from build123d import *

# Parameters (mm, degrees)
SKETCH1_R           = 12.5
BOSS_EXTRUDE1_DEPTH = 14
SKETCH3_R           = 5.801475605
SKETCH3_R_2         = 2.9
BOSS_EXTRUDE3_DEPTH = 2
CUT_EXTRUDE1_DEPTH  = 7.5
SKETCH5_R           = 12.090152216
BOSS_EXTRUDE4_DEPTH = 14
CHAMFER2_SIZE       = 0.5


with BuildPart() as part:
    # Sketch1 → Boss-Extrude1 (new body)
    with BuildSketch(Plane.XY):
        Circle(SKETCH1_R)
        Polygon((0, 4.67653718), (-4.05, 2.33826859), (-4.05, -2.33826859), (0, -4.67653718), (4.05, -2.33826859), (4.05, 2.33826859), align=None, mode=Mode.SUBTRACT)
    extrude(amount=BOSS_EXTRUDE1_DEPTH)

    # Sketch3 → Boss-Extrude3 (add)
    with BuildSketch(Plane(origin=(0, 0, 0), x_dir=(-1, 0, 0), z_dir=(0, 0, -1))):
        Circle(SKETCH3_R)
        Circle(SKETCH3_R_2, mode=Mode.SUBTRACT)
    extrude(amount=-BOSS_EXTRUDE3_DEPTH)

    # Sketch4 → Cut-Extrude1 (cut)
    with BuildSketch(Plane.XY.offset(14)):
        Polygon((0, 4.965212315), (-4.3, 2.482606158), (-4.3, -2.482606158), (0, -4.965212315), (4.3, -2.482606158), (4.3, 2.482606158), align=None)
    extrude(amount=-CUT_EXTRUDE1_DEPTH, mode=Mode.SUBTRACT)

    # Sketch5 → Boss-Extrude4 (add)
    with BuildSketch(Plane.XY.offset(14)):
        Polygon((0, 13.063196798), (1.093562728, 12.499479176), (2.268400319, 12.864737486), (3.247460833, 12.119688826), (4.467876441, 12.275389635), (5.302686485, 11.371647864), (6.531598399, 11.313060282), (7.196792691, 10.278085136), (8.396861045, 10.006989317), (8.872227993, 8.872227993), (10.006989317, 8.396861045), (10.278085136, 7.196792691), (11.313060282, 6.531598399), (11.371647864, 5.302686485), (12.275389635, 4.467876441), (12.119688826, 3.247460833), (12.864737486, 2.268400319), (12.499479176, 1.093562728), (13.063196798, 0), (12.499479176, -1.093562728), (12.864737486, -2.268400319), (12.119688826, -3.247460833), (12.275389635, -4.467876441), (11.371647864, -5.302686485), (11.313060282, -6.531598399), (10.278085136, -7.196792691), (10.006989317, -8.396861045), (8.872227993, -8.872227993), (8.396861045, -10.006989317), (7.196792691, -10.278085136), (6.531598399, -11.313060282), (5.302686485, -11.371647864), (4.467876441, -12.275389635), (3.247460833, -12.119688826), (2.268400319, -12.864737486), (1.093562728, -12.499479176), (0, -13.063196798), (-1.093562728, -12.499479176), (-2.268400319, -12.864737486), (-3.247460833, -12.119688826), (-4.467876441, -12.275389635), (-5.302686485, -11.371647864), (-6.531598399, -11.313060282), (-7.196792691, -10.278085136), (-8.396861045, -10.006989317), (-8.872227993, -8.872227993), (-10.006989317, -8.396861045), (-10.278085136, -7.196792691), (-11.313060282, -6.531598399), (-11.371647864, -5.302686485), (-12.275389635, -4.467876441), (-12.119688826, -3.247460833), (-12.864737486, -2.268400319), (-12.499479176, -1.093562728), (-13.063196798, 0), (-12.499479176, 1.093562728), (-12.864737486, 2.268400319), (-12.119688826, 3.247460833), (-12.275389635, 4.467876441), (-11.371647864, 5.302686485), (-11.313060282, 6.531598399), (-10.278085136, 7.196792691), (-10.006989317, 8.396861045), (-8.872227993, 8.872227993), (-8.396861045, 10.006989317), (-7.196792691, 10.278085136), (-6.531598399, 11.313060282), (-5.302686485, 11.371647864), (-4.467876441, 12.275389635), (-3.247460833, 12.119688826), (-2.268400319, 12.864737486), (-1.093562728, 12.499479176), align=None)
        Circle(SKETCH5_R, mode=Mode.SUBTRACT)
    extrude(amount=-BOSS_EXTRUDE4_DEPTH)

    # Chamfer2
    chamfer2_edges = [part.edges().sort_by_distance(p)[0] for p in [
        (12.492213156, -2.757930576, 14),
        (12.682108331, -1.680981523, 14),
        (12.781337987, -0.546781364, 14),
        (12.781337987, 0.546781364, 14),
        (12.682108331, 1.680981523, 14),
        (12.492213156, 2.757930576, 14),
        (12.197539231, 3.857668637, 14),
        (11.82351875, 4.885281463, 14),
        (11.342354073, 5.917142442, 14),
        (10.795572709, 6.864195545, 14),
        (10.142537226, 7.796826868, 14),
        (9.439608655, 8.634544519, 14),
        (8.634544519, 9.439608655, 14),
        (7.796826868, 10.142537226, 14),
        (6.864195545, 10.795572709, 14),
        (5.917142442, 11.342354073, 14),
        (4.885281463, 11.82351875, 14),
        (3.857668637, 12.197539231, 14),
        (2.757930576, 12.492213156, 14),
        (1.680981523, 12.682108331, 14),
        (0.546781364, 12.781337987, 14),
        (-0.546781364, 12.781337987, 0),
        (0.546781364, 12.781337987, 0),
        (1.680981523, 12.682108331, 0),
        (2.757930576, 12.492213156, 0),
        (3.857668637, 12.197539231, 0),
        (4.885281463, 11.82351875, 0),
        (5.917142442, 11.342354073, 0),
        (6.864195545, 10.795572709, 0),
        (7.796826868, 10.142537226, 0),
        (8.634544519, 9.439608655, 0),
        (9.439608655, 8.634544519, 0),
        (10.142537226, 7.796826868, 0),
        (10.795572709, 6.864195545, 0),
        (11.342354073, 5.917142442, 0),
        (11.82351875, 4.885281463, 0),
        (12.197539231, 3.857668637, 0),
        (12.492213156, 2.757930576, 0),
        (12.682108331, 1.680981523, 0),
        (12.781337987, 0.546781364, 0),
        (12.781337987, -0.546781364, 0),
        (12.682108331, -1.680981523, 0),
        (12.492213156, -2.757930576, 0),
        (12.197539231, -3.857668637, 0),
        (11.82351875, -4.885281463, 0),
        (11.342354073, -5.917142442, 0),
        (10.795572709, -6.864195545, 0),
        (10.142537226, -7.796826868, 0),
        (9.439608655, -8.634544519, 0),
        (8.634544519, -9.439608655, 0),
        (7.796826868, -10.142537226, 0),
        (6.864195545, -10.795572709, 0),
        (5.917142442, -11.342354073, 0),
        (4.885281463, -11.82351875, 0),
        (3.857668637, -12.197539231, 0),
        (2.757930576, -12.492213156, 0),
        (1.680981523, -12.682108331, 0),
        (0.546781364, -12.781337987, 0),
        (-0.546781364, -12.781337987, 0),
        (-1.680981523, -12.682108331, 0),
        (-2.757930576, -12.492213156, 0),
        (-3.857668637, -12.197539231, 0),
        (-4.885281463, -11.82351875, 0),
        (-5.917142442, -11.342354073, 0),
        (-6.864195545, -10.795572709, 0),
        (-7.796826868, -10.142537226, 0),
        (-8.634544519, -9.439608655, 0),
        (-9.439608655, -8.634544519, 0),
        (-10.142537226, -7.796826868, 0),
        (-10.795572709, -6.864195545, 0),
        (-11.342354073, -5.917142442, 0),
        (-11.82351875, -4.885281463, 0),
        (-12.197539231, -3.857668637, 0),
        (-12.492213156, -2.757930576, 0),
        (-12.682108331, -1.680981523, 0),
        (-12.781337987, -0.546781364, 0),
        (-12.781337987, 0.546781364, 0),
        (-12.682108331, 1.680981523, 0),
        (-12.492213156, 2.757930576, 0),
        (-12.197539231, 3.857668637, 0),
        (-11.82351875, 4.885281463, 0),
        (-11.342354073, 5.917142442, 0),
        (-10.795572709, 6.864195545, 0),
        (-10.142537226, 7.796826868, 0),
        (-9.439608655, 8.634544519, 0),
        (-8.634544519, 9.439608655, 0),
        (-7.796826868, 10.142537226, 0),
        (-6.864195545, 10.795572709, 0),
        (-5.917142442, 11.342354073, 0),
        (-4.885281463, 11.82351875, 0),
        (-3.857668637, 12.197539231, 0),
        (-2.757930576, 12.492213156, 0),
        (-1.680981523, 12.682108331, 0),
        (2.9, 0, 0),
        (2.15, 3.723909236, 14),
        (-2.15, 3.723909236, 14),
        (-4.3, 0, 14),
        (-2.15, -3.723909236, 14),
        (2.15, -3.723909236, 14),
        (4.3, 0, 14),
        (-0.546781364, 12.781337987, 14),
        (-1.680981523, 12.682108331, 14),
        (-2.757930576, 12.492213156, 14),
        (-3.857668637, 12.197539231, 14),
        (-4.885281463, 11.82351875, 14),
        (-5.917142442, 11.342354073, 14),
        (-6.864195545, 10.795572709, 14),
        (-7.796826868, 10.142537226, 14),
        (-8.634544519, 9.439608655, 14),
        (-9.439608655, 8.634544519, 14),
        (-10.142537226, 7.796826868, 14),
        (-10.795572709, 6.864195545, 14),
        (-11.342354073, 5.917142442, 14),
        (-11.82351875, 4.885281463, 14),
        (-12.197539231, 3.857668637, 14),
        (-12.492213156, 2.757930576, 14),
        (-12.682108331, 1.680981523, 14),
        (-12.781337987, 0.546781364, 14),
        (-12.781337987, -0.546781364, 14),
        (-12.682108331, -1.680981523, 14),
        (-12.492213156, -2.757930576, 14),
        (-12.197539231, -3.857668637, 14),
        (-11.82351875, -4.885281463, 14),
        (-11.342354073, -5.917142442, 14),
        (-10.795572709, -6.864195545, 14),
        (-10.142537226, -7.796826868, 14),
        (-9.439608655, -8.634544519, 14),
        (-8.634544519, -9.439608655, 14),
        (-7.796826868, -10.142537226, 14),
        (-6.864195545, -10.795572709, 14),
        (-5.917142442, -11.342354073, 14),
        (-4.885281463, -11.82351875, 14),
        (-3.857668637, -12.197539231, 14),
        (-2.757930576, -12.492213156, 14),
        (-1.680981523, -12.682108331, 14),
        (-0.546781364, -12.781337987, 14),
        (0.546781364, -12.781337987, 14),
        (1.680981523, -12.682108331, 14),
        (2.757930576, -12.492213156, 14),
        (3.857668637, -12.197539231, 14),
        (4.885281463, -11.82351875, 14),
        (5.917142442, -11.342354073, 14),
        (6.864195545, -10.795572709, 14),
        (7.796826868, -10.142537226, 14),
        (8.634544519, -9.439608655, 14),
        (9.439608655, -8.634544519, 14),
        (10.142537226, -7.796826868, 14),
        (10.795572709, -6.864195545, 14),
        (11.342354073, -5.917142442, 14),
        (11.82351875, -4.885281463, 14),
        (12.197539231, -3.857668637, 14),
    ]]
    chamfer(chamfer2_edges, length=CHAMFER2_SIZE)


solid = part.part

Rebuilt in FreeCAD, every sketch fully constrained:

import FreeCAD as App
import Part
import Sketcher

V = App.Vector
Q = App.Units.Quantity


def edges_at(feature, points):
    """Names of the edges that pass closest to the given points."""
    edges = feature.Shape.Edges
    near = lambda p: min(range(len(edges)), key=lambda i: edges[i].distToShape(Part.Vertex(*p))[0])
    return sorted({f"Edge{near(p) + 1}" for p in points})


def add_polygon(sketch, points):
    """Adds a closed chain of lines whose ends are joined by coincident constraints."""
    first, n = sketch.GeometryCount, len(points)
    for a, b in zip(points, points[1:] + points[:1]):
        sketch.addGeometry(Part.LineSegment(App.Vector(*a, 0), App.Vector(*b, 0)), False)
    for i in range(n):
        sketch.addConstraint(Sketcher.Constraint("Coincident", first + i, 2, first + (i + 1) % n, 1))

doc = App.newDocument("Part")
params = doc.addObject("Spreadsheet::Sheet", "Params")
for row, (alias, value) in enumerate([
    ("sketch1_diameter", "25 mm"),
    ("pad1_length", "14 mm"),
    ("sketch2_diameter", "5.8 mm"),
    ("pad2_length", "2 mm"),
    ("pocket1_length", "7.5 mm"),
    ("pad3_length", "14 mm"),
    ("chamfer_size", "0.5 mm"),
], start=1):
    params.set(f"A{row}", alias)
    params.set(f"B{row}", "=" + value)
    params.setAlias(f"B{row}", alias)

body = doc.addObject("PartDesign::Body", "Body")

# Sketch on XY plane
sketch1 = body.newObject("Sketcher::SketchObject", "Sketch")
sketch1.AttachmentSupport = (doc.getObject("XY_Plane"), [""])
sketch1.MapMode = "FlatFace"
sketch1.addGeometry(Part.Circle(V(0, 0, 0), V(0, 0, 1), 12.5), False)  # 0
add_polygon(sketch1, [(-4, 2.3), (0, 4.7), (4, 2.3), (4, -2.3), (0, -4.7), (-4, -2.3)])  # lines 1-6
sketch1.addConstraint([
    Sketcher.Constraint("Vertical", 3),
    Sketcher.Constraint("Vertical", 6),
    Sketcher.Constraint("Coincident", 0, 3, -1, 1),
    Sketcher.Constraint("Symmetric", 1, 2, 4, 2, -1, 1),
    Sketcher.Constraint("Symmetric", 2, 2, 5, 2, -1, 1),
    Sketcher.Constraint("PointOnObject", 1, 2, -2),
    Sketcher.Constraint("Parallel", 1, 4),
    Sketcher.Constraint("Horizontal", 3, 2, 5, 2),
    Sketcher.Constraint("Diameter", 0, 25.0),
    Sketcher.Constraint("Angle", 1, Q("30 deg")),
    Sketcher.Constraint("DistanceX", 5, 2, 3, 2, 8.1),
    Sketcher.Constraint("DistanceY", 3, 2, 3, 1, 4.676537),
])
sketch1.setExpression("Constraints[14]", "Params.sketch1_diameter")
pad1 = body.newObject("PartDesign::Pad", "Pad")
pad1.Profile = sketch1
pad1.setExpression("Length", "Params.pad1_length")

# Sketch on XY plane
sketch2 = body.newObject("Sketcher::SketchObject", "Sketch001")
sketch2.AttachmentSupport = (doc.getObject("XY_Plane"), [""])
sketch2.MapMode = "FlatFace"
sketch2.addGeometry([
    Part.Circle(V(0, 0, 0), V(0, 0, 1), 5.8),
    Part.Circle(V(0, 0, 0), V(0, 0, 1), 2.9),
], False)
sketch2.addConstraint([
    Sketcher.Constraint("Coincident", 0, 3, -1, 1),
    Sketcher.Constraint("Coincident", 1, 3, -1, 1),
    Sketcher.Constraint("Diameter", 1, 5.8),
    Sketcher.Constraint("Diameter", 0, 11.602951),
])
sketch2.setExpression("Constraints[2]", "Params.sketch2_diameter")
pad2 = body.newObject("PartDesign::Pad", "Pad001")
pad2.Profile = sketch2
pad2.setExpression("Length", "Params.pad2_length")

# Sketch on XY plane
sketch3 = body.newObject("Sketcher::SketchObject", "Sketch002")
sketch3.AttachmentSupport = (doc.getObject("XY_Plane"), [""])
sketch3.MapMode = "FlatFace"
sketch3.AttachmentOffset = App.Placement(V(0, 0, 14), App.Rotation())
add_polygon(sketch3, [(0, 5), (-4.3, 2.5), (-4.3, -2.5), (0, -5), (4.3, -2.5), (4.3, 2.5)])  # lines 0-5
sketch3.addConstraint([
    Sketcher.Constraint("Vertical", 1),
    Sketcher.Constraint("Vertical", 4),
    Sketcher.Constraint("Symmetric", 0, 2, 3, 2, -1, 1),
    Sketcher.Constraint("Symmetric", 2, 2, 5, 2, -1, 1),
    Sketcher.Constraint("PointOnObject", 2, 2, -2),
    Sketcher.Constraint("Parallel", 2, 5),
    Sketcher.Constraint("Horizontal", 1, 2, 3, 2),
    Sketcher.Constraint("Angle", 0, Q("-150 deg")),
    Sketcher.Constraint("DistanceX", 0, 2, -1, 1, 4.3),
    Sketcher.Constraint("DistanceY", 1, 2, 1, 1, 4.965212),
])
pocket1 = body.newObject("PartDesign::Pocket", "Pocket")
pocket1.Profile = sketch3
pocket1.setExpression("Length", "Params.pocket1_length")

# Sketch on XY plane
sketch4 = body.newObject("Sketcher::SketchObject", "Sketch003")
sketch4.AttachmentSupport = (doc.getObject("XY_Plane"), [""])
sketch4.MapMode = "FlatFace"
sketch4.AttachmentOffset = App.Placement(V(0, 0, 14), App.Rotation())
add_polygon(sketch4, [(1.1, 12.5), (0, 13.1), (-1.1, 12.5), (-2.3, 12.9), (-3.2, 12.1), (-4.5, 12.3), (-5.3, 11.4), (-6.5, 11.3), (-7.2, 10.3), (-8.4, 10), (-8.9, 8.9), (-10, 8.4), (-10.3, 7.2), (-11.3, 6.5), (-11.4, 5.3), (-12.3, 4.5), (-12.1, 3.2), (-12.9, 2.3), (-12.5, 1.1), (-13.1, 0), (-12.5, -1.1), (-12.9, -2.3), (-12.1, -3.2), (-12.3, -4.5), (-11.4, -5.3), (-11.3, -6.5), (-10.3, -7.2), (-10, -8.4), (-8.9, -8.9), (-8.4, -10), (-7.2, -10.3), (-6.5, -11.3), (-5.3, -11.4), (-4.5, -12.3), (-3.2, -12.1), (-2.3, -12.9), (-1.1, -12.5), (0, -13.1), (1.1, -12.5), (2.3, -12.9), (3.2, -12.1), (4.5, -12.3), (5.3, -11.4), (6.5, -11.3), (7.2, -10.3), (8.4, -10), (8.9, -8.9), (10, -8.4), (10.3, -7.2), (11.3, -6.5), (11.4, -5.3), (12.3, -4.5), (12.1, -3.2), (12.9, -2.3), (12.5, -1.1), (13.1, 0), (12.5, 1.1), (12.9, 2.3), (12.1, 3.2), (12.3, 4.5), (11.4, 5.3), (11.3, 6.5), (10.3, 7.2), (10, 8.4), (8.9, 8.9), (8.4, 10), (7.2, 10.3), (6.5, 11.3), (5.3, 11.4), (4.5, 12.3), (3.2, 12.1), (2.3, 12.9)])  # lines 0-71
sketch4.addGeometry(Part.Circle(V(0, 0, 0), V(0, 0, 1), 12.1), False)  # 72
sketch4.addConstraint([
    Sketcher.Constraint("Coincident", 72, 3, -1, 1),
    Sketcher.Constraint("Symmetric", 0, 2, 36, 2, -1, 1),
    Sketcher.Constraint("Symmetric", 1, 2, 37, 2, -1, 1),
    Sketcher.Constraint("Symmetric", 2, 2, 38, 2, -1, 1),
    Sketcher.Constraint("Symmetric", 3, 2, 39, 2, -1, 1),
    Sketcher.Constraint("Symmetric", 4, 2, 40, 2, -1, 1),
    Sketcher.Constraint("Symmetric", 5, 2, 41, 2, -1, 1),
    Sketcher.Constraint("Symmetric", 6, 2, 42, 2, -1, 1),
    Sketcher.Constraint("Symmetric", 7, 2, 43, 2, -1, 1),
    Sketcher.Constraint("Symmetric", 8, 2, 44, 2, -1, 1),
    Sketcher.Constraint("Symmetric", 9, 2, 45, 2, -1, 1),
    Sketcher.Constraint("Symmetric", 10, 2, 46, 2, -1, 1),
    Sketcher.Constraint("Symmetric", 11, 2, 47, 2, -1, 1),
    Sketcher.Constraint("Symmetric", 12, 2, 48, 2, -1, 1),
    Sketcher.Constraint("Symmetric", 13, 2, 49, 2, -1, 1),
    Sketcher.Constraint("Symmetric", 14, 2, 50, 2, -1, 1),
    Sketcher.Constraint("Symmetric", 15, 2, 51, 2, -1, 1),
    Sketcher.Constraint("Symmetric", 16, 2, 52, 2, -1, 1),
    Sketcher.Constraint("Symmetric", 17, 2, 53, 2, -1, 1),
    Sketcher.Constraint("Symmetric", 18, 2, 54, 2, -1, 1),
    Sketcher.Constraint("Symmetric", 19, 2, 55, 2, -1, 1),
    Sketcher.Constraint("Symmetric", 20, 2, 56, 2, -1, 1),
    Sketcher.Constraint("Symmetric", 21, 2, 57, 2, -1, 1),
    Sketcher.Constraint("Symmetric", 22, 2, 58, 2, -1, 1),
    Sketcher.Constraint("Symmetric", 23, 2, 59, 2, -1, 1),
    Sketcher.Constraint("Symmetric", 24, 2, 60, 2, -1, 1),
    Sketcher.Constraint("Symmetric", 25, 2, 61, 2, -1, 1),
    Sketcher.Constraint("Symmetric", 26, 2, 62, 2, -1, 1),
    Sketcher.Constraint("Symmetric", 27, 2, 63, 2, -1, 1),
    Sketcher.Constraint("Symmetric", 28, 2, 64, 2, -1, 1),
    Sketcher.Constraint("Symmetric", 29, 2, 65, 2, -1, 1),
    Sketcher.Constraint("Symmetric", 30, 2, 66, 2, -1, 1),
    Sketcher.Constraint("Symmetric", 31, 2, 67, 2, -1, 1),
    Sketcher.Constraint("Symmetric", 32, 2, 68, 2, -1, 1),
    Sketcher.Constraint("Symmetric", 33, 2, 69, 2, -1, 1),
    Sketcher.Constraint("Symmetric", 34, 2, 70, 2, -1, 1),
    Sketcher.Constraint("Symmetric", 35, 2, 71, 2, -1, 1),
    Sketcher.Constraint("Symmetric", 35, 2, 37, 2, -2),
    Sketcher.Constraint("Symmetric", 34, 2, 38, 2, -2),
    Sketcher.Constraint("Symmetric", 33, 2, 39, 2, -2),
    Sketcher.Constraint("Symmetric", 32, 2, 40, 2, -2),
    Sketcher.Constraint("Symmetric", 31, 2, 41, 2, -2),
    Sketcher.Constraint("Symmetric", 30, 2, 42, 2, -2),
    Sketcher.Constraint("Symmetric", 29, 2, 43, 2, -2),
    Sketcher.Constraint("Symmetric", 28, 2, 44, 2, -2),
    Sketcher.Constraint("Symmetric", 27, 2, 45, 2, -2),
    Sketcher.Constraint("Symmetric", 26, 2, 46, 2, -2),
    Sketcher.Constraint("Symmetric", 25, 2, 47, 2, -2),
    Sketcher.Constraint("Symmetric", 24, 2, 48, 2, -2),
    Sketcher.Constraint("Symmetric", 23, 2, 49, 2, -2),
    Sketcher.Constraint("Symmetric", 22, 2, 50, 2, -2),
    Sketcher.Constraint("Symmetric", 21, 2, 51, 2, -2),
    Sketcher.Constraint("Symmetric", 20, 2, 52, 2, -2),
    Sketcher.Constraint("Symmetric", 19, 2, 53, 2, -2),
    Sketcher.Constraint("PointOnObject", 0, 2, -2),
    Sketcher.Constraint("PointOnObject", 18, 2, -1),
    Sketcher.Constraint("Perpendicular", 0, 18),
    Sketcher.Constraint("Perpendicular", 2, 20),
    Sketcher.Constraint("Perpendicular", 3, 21),
    Sketcher.Constraint("Perpendicular", 4, 22),
    Sketcher.Constraint("Perpendicular", 5, 23),
    Sketcher.Constraint("Perpendicular", 6, 24),
    Sketcher.Constraint("Perpendicular", 7, 25),
    Sketcher.Constraint("Perpendicular", 8, 26),
    Sketcher.Constraint("Perpendicular", 9, 27),
    Sketcher.Constraint("Equal", 1, 2),
    Sketcher.Constraint("Equal", 2, 3),
    Sketcher.Constraint("Equal", 3, 4),
    Sketcher.Constraint("Equal", 4, 5),
    Sketcher.Constraint("Equal", 5, 6),
    Sketcher.Constraint("Equal", 6, 7),
    Sketcher.Constraint("Equal", 7, 8),
    Sketcher.Constraint("Equal", 8, 9),
    Sketcher.Constraint("Equal", 9, 10),
    Sketcher.Constraint("Equal", 10, 11),
    Sketcher.Constraint("Equal", 11, 12),
    Sketcher.Constraint("Equal", 12, 13),
    Sketcher.Constraint("Equal", 13, 14),
    Sketcher.Constraint("Equal", 14, 15),
    Sketcher.Constraint("Equal", 15, 16),
    Sketcher.Constraint("Equal", 16, 17),
    Sketcher.Constraint("Equal", 17, 18),
    Sketcher.Constraint("Diameter", 72, 24.180304),
    Sketcher.Constraint("DistanceX", 2, 2, -1, 1, 2.2684),
    Sketcher.Constraint("DistanceX", 6, 2, -1, 1, 6.531598),
    Sketcher.Constraint("DistanceY", -1, 1, 1, 2, 12.499479),
    Sketcher.Constraint("DistanceX", 3, 2, -1, 1, 3.247461),
    Sketcher.Constraint("DistanceY", -1, 1, 3, 2, 12.119689),
    Sketcher.Constraint("DistanceY", -1, 1, 4, 2, 12.27539),
    Sketcher.Constraint("DistanceY", -1, 1, 6, 2, 11.31306),
    Sketcher.Constraint("DistanceX", 8, 2, -1, 1, 8.396861),
    Sketcher.Constraint("DistanceY", -1, 1, 8, 2, 10.006989),
    Sketcher.Constraint("Distance", 0, 1.230308),
])
pad3 = body.newObject("PartDesign::Pad", "Pad002")
pad3.Profile = sketch4
pad3.setExpression("Length", "Params.pad3_length")
pad3.Reversed = True
doc.recompute()

chamfer = body.newObject("PartDesign::Chamfer", "Chamfer")
chamfer.Base = (pad3, edges_at(pad3, [
    (12.492, -2.758, 14),
    (12.682, -1.681, 14),
    (12.781, -0.547, 14),
    (12.781, 0.547, 14),
    (12.682, 1.681, 14),
    (12.492, 2.758, 14),
    (12.198, 3.858, 14),
    (11.824, 4.885, 14),
    (11.342, 5.917, 14),
    (10.796, 6.864, 14),
    (10.143, 7.797, 14),
    (9.44, 8.635, 14),
    (8.635, 9.44, 14),
    (7.797, 10.143, 14),
    (6.864, 10.796, 14),
    (5.917, 11.342, 14),
    (4.885, 11.824, 14),
    (3.858, 12.198, 14),
    (2.758, 12.492, 14),
    (1.681, 12.682, 14),
    (0.547, 12.781, 14),
    (-0.547, 12.781, 0),
    (0.547, 12.781, 0),
    (1.681, 12.682, 0),
    (2.758, 12.492, 0),
    (3.858, 12.198, 0),
    (4.885, 11.824, 0),
    (5.917, 11.342, 0),
    (6.864, 10.796, 0),
    (7.797, 10.143, 0),
    (8.635, 9.44, 0),
    (9.44, 8.635, 0),
    (10.143, 7.797, 0),
    (10.796, 6.864, 0),
    (11.342, 5.917, 0),
    (11.824, 4.885, 0),
    (12.198, 3.858, 0),
    (12.492, 2.758, 0),
    (12.682, 1.681, 0),
    (12.781, 0.547, 0),
    (12.781, -0.547, 0),
    (12.682, -1.681, 0),
    (12.492, -2.758, 0),
    (12.198, -3.858, 0),
    (11.824, -4.885, 0),
    (11.342, -5.917, 0),
    (10.796, -6.864, 0),
    (10.143, -7.797, 0),
    (9.44, -8.635, 0),
    (8.635, -9.44, 0),
    (7.797, -10.143, 0),
    (6.864, -10.796, 0),
    (5.917, -11.342, 0),
    (4.885, -11.824, 0),
    (3.858, -12.198, 0),
    (2.758, -12.492, 0),
    (1.681, -12.682, 0),
    (0.547, -12.781, 0),
    (-0.547, -12.781, 0),
    (-1.681, -12.682, 0),
    (-2.758, -12.492, 0),
    (-3.858, -12.198, 0),
    (-4.885, -11.824, 0),
    (-5.917, -11.342, 0),
    (-6.864, -10.796, 0),
    (-7.797, -10.143, 0),
    (-8.635, -9.44, 0),
    (-9.44, -8.635, 0),
    (-10.143, -7.797, 0),
    (-10.796, -6.864, 0),
    (-11.342, -5.917, 0),
    (-11.824, -4.885, 0),
    (-12.198, -3.858, 0),
    (-12.492, -2.758, 0),
    (-12.682, -1.681, 0),
    (-12.781, -0.547, 0),
    (-12.781, 0.547, 0),
    (-12.682, 1.681, 0),
    (-12.492, 2.758, 0),
    (-12.198, 3.858, 0),
    (-11.824, 4.885, 0),
    (-11.342, 5.917, 0),
    (-10.796, 6.864, 0),
    (-10.143, 7.797, 0),
    (-9.44, 8.635, 0),
    (-8.635, 9.44, 0),
    (-7.797, 10.143, 0),
    (-6.864, 10.796, 0),
    (-5.917, 11.342, 0),
    (-4.885, 11.824, 0),
    (-3.858, 12.198, 0),
    (-2.758, 12.492, 0),
    (-1.681, 12.682, 0),
    (2.9, 0, 0),
    (2.15, 3.724, 14),
    (-2.15, 3.724, 14),
    (-4.3, 0, 14),
    (-2.15, -3.724, 14),
    (2.15, -3.724, 14),
    (4.3, 0, 14),
    (-0.547, 12.781, 14),
    (-1.681, 12.682, 14),
    (-2.758, 12.492, 14),
    (-3.858, 12.198, 14),
    (-4.885, 11.824, 14),
    (-5.917, 11.342, 14),
    (-6.864, 10.796, 14),
    (-7.797, 10.143, 14),
    (-8.635, 9.44, 14),
    (-9.44, 8.635, 14),
    (-10.143, 7.797, 14),
    (-10.796, 6.864, 14),
    (-11.342, 5.917, 14),
    (-11.824, 4.885, 14),
    (-12.198, 3.858, 14),
    (-12.492, 2.758, 14),
    (-12.682, 1.681, 14),
    (-12.781, 0.547, 14),
    (-12.781, -0.547, 14),
    (-12.682, -1.681, 14),
    (-12.492, -2.758, 14),
    (-12.198, -3.858, 14),
    (-11.824, -4.885, 14),
    (-11.342, -5.917, 14),
    (-10.796, -6.864, 14),
    (-10.143, -7.797, 14),
    (-9.44, -8.635, 14),
    (-8.635, -9.44, 14),
    (-7.797, -10.143, 14),
    (-6.864, -10.796, 14),
    (-5.917, -11.342, 14),
    (-4.885, -11.824, 14),
    (-3.858, -12.198, 14),
    (-2.758, -12.492, 14),
    (-1.681, -12.682, 14),
    (-0.547, -12.781, 14),
    (0.547, -12.781, 14),
    (1.681, -12.682, 14),
    (2.758, -12.492, 14),
    (3.858, -12.198, 14),
    (4.885, -11.824, 14),
    (5.917, -11.342, 14),
    (6.864, -10.796, 14),
    (7.797, -10.143, 14),
    (8.635, -9.44, 14),
    (9.44, -8.635, 14),
    (10.143, -7.797, 14),
    (10.796, -6.864, 14),
    (11.342, -5.917, 14),
    (11.824, -4.885, 14),
    (12.198, -3.858, 14),
]))
chamfer.setExpression("Size", "Params.chamfer_size")

doc.recompute()
